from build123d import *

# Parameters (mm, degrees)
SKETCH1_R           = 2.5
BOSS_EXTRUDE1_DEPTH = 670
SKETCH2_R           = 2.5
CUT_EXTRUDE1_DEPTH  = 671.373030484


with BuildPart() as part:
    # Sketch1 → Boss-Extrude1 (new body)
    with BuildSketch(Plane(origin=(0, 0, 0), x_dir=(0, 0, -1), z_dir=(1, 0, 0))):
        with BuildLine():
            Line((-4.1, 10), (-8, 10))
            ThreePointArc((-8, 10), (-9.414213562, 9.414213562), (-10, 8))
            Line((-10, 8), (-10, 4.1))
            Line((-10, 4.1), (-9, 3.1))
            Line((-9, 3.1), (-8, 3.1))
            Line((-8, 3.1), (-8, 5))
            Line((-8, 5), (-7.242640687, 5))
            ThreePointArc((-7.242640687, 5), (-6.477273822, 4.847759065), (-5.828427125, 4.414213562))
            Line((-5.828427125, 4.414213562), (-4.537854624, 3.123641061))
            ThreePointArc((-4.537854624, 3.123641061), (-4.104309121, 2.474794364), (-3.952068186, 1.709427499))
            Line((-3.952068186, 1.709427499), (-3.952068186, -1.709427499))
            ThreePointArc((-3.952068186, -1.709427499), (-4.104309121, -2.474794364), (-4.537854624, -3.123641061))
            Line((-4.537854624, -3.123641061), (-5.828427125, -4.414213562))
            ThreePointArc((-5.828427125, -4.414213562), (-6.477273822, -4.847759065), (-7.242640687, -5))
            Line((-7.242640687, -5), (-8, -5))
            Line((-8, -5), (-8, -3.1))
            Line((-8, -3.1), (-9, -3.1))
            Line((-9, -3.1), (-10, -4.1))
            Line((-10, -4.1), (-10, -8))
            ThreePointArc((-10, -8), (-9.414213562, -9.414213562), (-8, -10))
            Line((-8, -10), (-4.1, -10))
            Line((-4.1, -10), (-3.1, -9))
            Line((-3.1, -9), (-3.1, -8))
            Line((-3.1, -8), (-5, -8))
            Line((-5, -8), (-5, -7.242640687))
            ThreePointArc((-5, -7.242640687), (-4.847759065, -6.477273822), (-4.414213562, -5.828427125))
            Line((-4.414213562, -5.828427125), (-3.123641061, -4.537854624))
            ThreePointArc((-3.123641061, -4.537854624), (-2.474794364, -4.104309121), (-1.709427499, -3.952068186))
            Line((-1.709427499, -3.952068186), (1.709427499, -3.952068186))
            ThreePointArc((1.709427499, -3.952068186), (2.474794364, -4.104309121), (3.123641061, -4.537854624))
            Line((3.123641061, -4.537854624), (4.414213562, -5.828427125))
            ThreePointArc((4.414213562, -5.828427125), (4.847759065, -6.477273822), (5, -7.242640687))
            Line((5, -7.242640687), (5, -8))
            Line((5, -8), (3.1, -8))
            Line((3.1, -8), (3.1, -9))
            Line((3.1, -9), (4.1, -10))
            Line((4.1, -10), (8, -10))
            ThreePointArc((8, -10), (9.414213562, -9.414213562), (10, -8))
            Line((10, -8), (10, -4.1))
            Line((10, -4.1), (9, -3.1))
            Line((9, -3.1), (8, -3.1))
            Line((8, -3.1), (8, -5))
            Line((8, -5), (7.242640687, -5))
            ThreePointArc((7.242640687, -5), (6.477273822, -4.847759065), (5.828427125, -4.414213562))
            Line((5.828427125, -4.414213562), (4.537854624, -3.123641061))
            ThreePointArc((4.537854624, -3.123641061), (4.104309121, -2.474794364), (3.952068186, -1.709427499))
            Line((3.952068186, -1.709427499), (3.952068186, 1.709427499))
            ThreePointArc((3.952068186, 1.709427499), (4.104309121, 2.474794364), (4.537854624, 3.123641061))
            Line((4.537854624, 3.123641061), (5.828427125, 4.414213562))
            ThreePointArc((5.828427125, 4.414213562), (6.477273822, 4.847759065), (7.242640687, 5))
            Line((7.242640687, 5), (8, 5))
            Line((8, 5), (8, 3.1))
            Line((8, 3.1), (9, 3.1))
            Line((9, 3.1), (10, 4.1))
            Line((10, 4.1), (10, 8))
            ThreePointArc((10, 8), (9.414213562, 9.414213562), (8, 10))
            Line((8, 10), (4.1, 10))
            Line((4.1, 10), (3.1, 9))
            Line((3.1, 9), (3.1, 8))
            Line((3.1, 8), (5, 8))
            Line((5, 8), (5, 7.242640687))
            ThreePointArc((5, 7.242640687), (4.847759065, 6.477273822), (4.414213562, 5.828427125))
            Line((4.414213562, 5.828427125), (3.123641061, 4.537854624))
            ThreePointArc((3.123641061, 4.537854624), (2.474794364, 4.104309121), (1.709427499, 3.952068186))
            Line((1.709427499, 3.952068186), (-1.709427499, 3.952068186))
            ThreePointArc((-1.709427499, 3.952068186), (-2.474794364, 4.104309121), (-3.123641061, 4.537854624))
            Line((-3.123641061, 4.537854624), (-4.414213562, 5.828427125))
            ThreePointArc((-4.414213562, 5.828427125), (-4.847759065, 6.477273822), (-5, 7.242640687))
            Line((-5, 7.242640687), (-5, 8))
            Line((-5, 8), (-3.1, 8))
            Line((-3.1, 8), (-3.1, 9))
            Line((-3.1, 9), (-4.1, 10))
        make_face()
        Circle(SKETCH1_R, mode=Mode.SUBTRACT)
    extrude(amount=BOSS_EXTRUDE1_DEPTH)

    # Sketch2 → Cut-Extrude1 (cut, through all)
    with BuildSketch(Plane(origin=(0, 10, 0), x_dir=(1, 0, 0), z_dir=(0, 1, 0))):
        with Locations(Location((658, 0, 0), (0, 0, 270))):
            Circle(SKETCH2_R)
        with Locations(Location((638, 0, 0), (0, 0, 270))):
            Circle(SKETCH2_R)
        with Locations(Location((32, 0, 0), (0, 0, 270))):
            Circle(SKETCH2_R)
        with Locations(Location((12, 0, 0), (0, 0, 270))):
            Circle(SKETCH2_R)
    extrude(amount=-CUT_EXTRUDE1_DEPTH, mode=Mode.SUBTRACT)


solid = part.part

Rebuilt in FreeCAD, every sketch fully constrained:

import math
import FreeCAD as App
import Part
import Sketcher

V = App.Vector

doc = App.newDocument("Part")
body = doc.addObject("PartDesign::Body", "Body")

# Sketch on YZ plane
sketch1 = body.newObject("Sketcher::SketchObject", "Sketch")
sketch1.AttachmentSupport = (doc.getObject("YZ_Plane"), [""])
sketch1.MapMode = "FlatFace"
sketch1.addGeometry(Part.LineSegment(V(10, 4.1, 0), V(10, 8, 0)), False)
sketch1.addGeometry(Part.ArcOfCircle(Part.Circle(V(8, 8, 0), V(0, 0, 1), 2), math.radians(0), math.radians(90)), False)
sketch1.addGeometry(Part.LineSegment(V(8, 10, 0), V(4.1, 10, 0)), False)
sketch1.addGeometry(Part.LineSegment(V(4.1, 10, 0), V(3.1, 9, 0)), False)
sketch1.addGeometry(Part.LineSegment(V(3.1, 9, 0), V(3.1, 8, 0)), False)
sketch1.addGeometry(Part.LineSegment(V(3.1, 8, 0), V(5, 8, 0)), False)
sketch1.addGeometry(Part.LineSegment(V(5, 8, 0), V(5, 7.242641, 0)), False)
sketch1.addGeometry(Part.ArcOfCircle(Part.Circle(V(3, 7.242641, 0), V(0, 0, 1), 2), math.radians(-45), math.radians(0)), False)
sketch1.addGeometry(Part.LineSegment(V(4.414214, 5.828427, 0), V(3.123641, 4.537855, 0)), False)
sketch1.addGeometry(Part.ArcOfCircle(Part.Circle(V(1.709428, 5.952068, 0), V(0, 0, 1), 2), math.radians(-90), math.radians(-45)), False)
sketch1.addGeometry(Part.LineSegment(V(1.709427, 3.952068, 0), V(-1.709427, 3.952068, 0)), False)
sketch1.addGeometry(Part.ArcOfCircle(Part.Circle(V(-1.709428, 5.952068, 0), V(0, 0, 1), 2), math.radians(-135), math.radians(-90)), False)
sketch1.addGeometry(Part.LineSegment(V(-3.123641, 4.537855, 0), V(-4.414214, 5.828427, 0)), False)
sketch1.addGeometry(Part.ArcOfCircle(Part.Circle(V(-3, 7.242641, 0), V(0, 0, 1), 2), math.radians(180), math.radians(225)), False)
sketch1.addGeometry(Part.LineSegment(V(-5, 7.242641, 0), V(-5, 8, 0)), False)
sketch1.addGeometry(Part.LineSegment(V(-5, 8, 0), V(-3.1, 8, 0)), False)
sketch1.addGeometry(Part.LineSegment(V(-3.1, 8, 0), V(-3.1, 9, 0)), False)
sketch1.addGeometry(Part.LineSegment(V(-3.1, 9, 0), V(-4.1, 10, 0)), False)
sketch1.addGeometry(Part.LineSegment(V(-4.1, 10, 0), V(-8, 10, 0)), False)
sketch1.addGeometry(Part.ArcOfCircle(Part.Circle(V(-8, 8, 0), V(0, 0, 1), 2), math.radians(90), math.radians(180)), False)
sketch1.addGeometry(Part.LineSegment(V(-10, 8, 0), V(-10, 4.1, 0)), False)
sketch1.addGeometry(Part.LineSegment(V(-10, 4.1, 0), V(-9, 3.1, 0)), False)
sketch1.addGeometry(Part.LineSegment(V(-9, 3.1, 0), V(-8, 3.1, 0)), False)
sketch1.addGeometry(Part.LineSegment(V(-8, 3.1, 0), V(-8, 5, 0)), False)
sketch1.addGeometry(Part.LineSegment(V(-8, 5, 0), V(-7.242641, 5, 0)), False)
sketch1.addGeometry(Part.ArcOfCircle(Part.Circle(V(-7.242641, 3, 0), V(0, 0, 1), 2), math.radians(45), math.radians(90)), False)
sketch1.addGeometry(Part.LineSegment(V(-5.828427, 4.414214, 0), V(-4.537855, 3.123641, 0)), False)
sketch1.addGeometry(Part.ArcOfCircle(Part.Circle(V(-5.952068, 1.709428, 0), V(0, 0, 1), 2), math.radians(0), math.radians(45)), False)
sketch1.addGeometry(Part.LineSegment(V(-3.952068, 1.709427, 0), V(-3.952068, -1.709427, 0)), False)
sketch1.addGeometry(Part.ArcOfCircle(Part.Circle(V(-5.952068, -1.709428, 0), V(0, 0, 1), 2), math.radians(-45), math.radians(0)), False)
sketch1.addGeometry(Part.LineSegment(V(-4.537855, -3.123641, 0), V(-5.828427, -4.414214, 0)), False)
sketch1.addGeometry(Part.ArcOfCircle(Part.Circle(V(-7.242641, -3, 0), V(0, 0, 1), 2), math.radians(-90), math.radians(-45)), False)
sketch1.addGeometry(Part.LineSegment(V(-7.242641, -5, 0), V(-8, -5, 0)), False)
sketch1.addGeometry(Part.LineSegment(V(-8, -5, 0), V(-8, -3.1, 0)), False)
sketch1.addGeometry(Part.LineSegment(V(-8, -3.1, 0), V(-9, -3.1, 0)), False)
sketch1.addGeometry(Part.LineSegment(V(-9, -3.1, 0), V(-10, -4.1, 0)), False)
sketch1.addGeometry(Part.LineSegment(V(-10, -4.1, 0), V(-10, -8, 0)), False)
sketch1.addGeometry(Part.ArcOfCircle(Part.Circle(V(-8, -8, 0), V(0, 0, 1), 2), math.radians(-180), math.radians(-90)), False)
sketch1.addGeometry(Part.LineSegment(V(-8, -10, 0), V(-4.1, -10, 0)), False)
sketch1.addGeometry(Part.LineSegment(V(-4.1, -10, 0), V(-3.1, -9, 0)), False)
sketch1.addGeometry(Part.LineSegment(V(-3.1, -9, 0), V(-3.1, -8, 0)), False)
sketch1.addGeometry(Part.LineSegment(V(-3.1, -8, 0), V(-5, -8, 0)), False)
sketch1.addGeometry(Part.LineSegment(V(-5, -8, 0), V(-5, -7.242641, 0)), False)
sketch1.addGeometry(Part.ArcOfCircle(Part.Circle(V(-3, -7.242641, 0), V(0, 0, 1), 2), math.radians(135), math.radians(180)), False)
sketch1.addGeometry(Part.LineSegment(V(-4.414214, -5.828427, 0), V(-3.123641, -4.537855, 0)), False)
sketch1.addGeometry(Part.ArcOfCircle(Part.Circle(V(-1.709428, -5.952068, 0), V(0, 0, 1), 2), math.radians(90), math.radians(135)), False)
sketch1.addGeometry(Part.LineSegment(V(-1.709427, -3.952068, 0), V(1.709427, -3.952068, 0)), False)
sketch1.addGeometry(Part.ArcOfCircle(Part.Circle(V(1.709428, -5.952068, 0), V(0, 0, 1), 2), math.radians(45), math.radians(90)), False)
sketch1.addGeometry(Part.LineSegment(V(3.123641, -4.537855, 0), V(4.414214, -5.828427, 0)), False)
sketch1.addGeometry(Part.ArcOfCircle(Part.Circle(V(3, -7.242641, 0), V(0, 0, 1), 2), math.radians(0), math.radians(45)), False)
sketch1.addGeometry(Part.LineSegment(V(5, -7.242641, 0), V(5, -8, 0)), False)
sketch1.addGeometry(Part.LineSegment(V(5, -8, 0), V(3.1, -8, 0)), False)
sketch1.addGeometry(Part.LineSegment(V(3.1, -8, 0), V(3.1, -9, 0)), False)
sketch1.addGeometry(Part.LineSegment(V(3.1, -9, 0), V(4.1, -10, 0)), False)
sketch1.addGeometry(Part.LineSegment(V(4.1, -10, 0), V(8, -10, 0)), False)
sketch1.addGeometry(Part.ArcOfCircle(Part.Circle(V(8, -8, 0), V(0, 0, 1), 2), math.radians(-90), math.radians(0)), False)
sketch1.addGeometry(Part.LineSegment(V(10, -8, 0), V(10, -4.1, 0)), False)
sketch1.addGeometry(Part.LineSegment(V(10, -4.1, 0), V(9, -3.1, 0)), False)
sketch1.addGeometry(Part.LineSegment(V(9, -3.1, 0), V(8, -3.1, 0)), False)
sketch1.addGeometry(Part.LineSegment(V(8, -3.1, 0), V(8, -5, 0)), False)
sketch1.addGeometry(Part.LineSegment(V(8, -5, 0), V(7.242641, -5, 0)), False)
sketch1.addGeometry(Part.ArcOfCircle(Part.Circle(V(7.242641, -3, 0), V(0, 0, 1), 2), math.radians(-135), math.radians(-90)), False)
sketch1.addGeometry(Part.LineSegment(V(5.828427, -4.414214, 0), V(4.537855, -3.123641, 0)), False)
sketch1.addGeometry(Part.ArcOfCircle(Part.Circle(V(5.952068, -1.709428, 0), V(0, 0, 1), 2), math.radians(180), math.radians(225)), False)
sketch1.addGeometry(Part.LineSegment(V(3.952068, -1.709427, 0), V(3.952068, 1.709427, 0)), False)
sketch1.addGeometry(Part.ArcOfCircle(Part.Circle(V(5.952068, 1.709428, 0), V(0, 0, 1), 2), math.radians(135), math.radians(180)), False)
sketch1.addGeometry(Part.LineSegment(V(4.537855, 3.123641, 0), V(5.828427, 4.414214, 0)), False)
sketch1.addGeometry(Part.ArcOfCircle(Part.Circle(V(7.242641, 3, 0), V(0, 0, 1), 2), math.radians(90), math.radians(135)), False)
sketch1.addGeometry(Part.LineSegment(V(7.242641, 5, 0), V(8, 5, 0)), False)
sketch1.addGeometry(Part.LineSegment(V(8, 5, 0), V(8, 3.1, 0)), False)
sketch1.addGeometry(Part.LineSegment(V(8, 3.1, 0), V(9, 3.1, 0)), False)
sketch1.addGeometry(Part.LineSegment(V(9, 3.1, 0), V(10, 4.1, 0)), False)
sketch1.addGeometry(Part.Circle(V(0, 0, 0), V(0, 0, 1), 2.5), False)
sketch1.addConstraint(Sketcher.Constraint("Tangent", 0, 2, 1, 1))
sketch1.addConstraint(Sketcher.Constraint("Tangent", 1, 2, 2, 1))
sketch1.addConstraint(Sketcher.Constraint("Coincident", 2, 2, 3, 1))
sketch1.addConstraint(Sketcher.Constraint("Coincident", 3, 2, 4, 1))
sketch1.addConstraint(Sketcher.Constraint("Coincident", 4, 2, 5, 1))
sketch1.addConstraint(Sketcher.Constraint("Coincident", 5, 2, 6, 1))
sketch1.addConstraint(Sketcher.Constraint("Tangent", 6, 2, 7, 2))
sketch1.addConstraint(Sketcher.Constraint("Tangent", 7, 1, 8, 1))
sketch1.addConstraint(Sketcher.Constraint("Tangent", 8, 2, 9, 2))
sketch1.addConstraint(Sketcher.Constraint("Tangent", 9, 1, 10, 1))
sketch1.addConstraint(Sketcher.Constraint("Tangent", 10, 2, 11, 2))
sketch1.addConstraint(Sketcher.Constraint("Tangent", 11, 1, 12, 1))
sketch1.addConstraint(Sketcher.Constraint("Tangent", 12, 2, 13, 2))
sketch1.addConstraint(Sketcher.Constraint("Tangent", 13, 1, 14, 1))
sketch1.addConstraint(Sketcher.Constraint("Coincident", 14, 2, 15, 1))
sketch1.addConstraint(Sketcher.Constraint("Coincident", 15, 2, 16, 1))
sketch1.addConstraint(Sketcher.Constraint("Coincident", 16, 2, 17, 1))
sketch1.addConstraint(Sketcher.Constraint("Coincident", 17, 2, 18, 1))
sketch1.addConstraint(Sketcher.Constraint("Tangent", 18, 2, 19, 1))
sketch1.addConstraint(Sketcher.Constraint("Tangent", 19, 2, 20, 1))
sketch1.addConstraint(Sketcher.Constraint("Coincident", 20, 2, 21, 1))
sketch1.addConstraint(Sketcher.Constraint("Coincident", 21, 2, 22, 1))
sketch1.addConstraint(Sketcher.Constraint("Coincident", 22, 2, 23, 1))
sketch1.addConstraint(Sketcher.Constraint("Coincident", 23, 2, 24, 1))
sketch1.addConstraint(Sketcher.Constraint("Tangent", 24, 2, 25, 2))
sketch1.addConstraint(Sketcher.Constraint("Tangent", 25, 1, 26, 1))
sketch1.addConstraint(Sketcher.Constraint("Tangent", 26, 2, 27, 2))
sketch1.addConstraint(Sketcher.Constraint("Tangent", 27, 1, 28, 1))
sketch1.addConstraint(Sketcher.Constraint("Tangent", 28, 2, 29, 2))
sketch1.addConstraint(Sketcher.Constraint("Tangent", 29, 1, 30, 1))
sketch1.addConstraint(Sketcher.Constraint("Tangent", 30, 2, 31, 2))
sketch1.addConstraint(Sketcher.Constraint("Tangent", 31, 1, 32, 1))
sketch1.addConstraint(Sketcher.Constraint("Coincident", 32, 2, 33, 1))
sketch1.addConstraint(Sketcher.Constraint("Coincident", 33, 2, 34, 1))
sketch1.addConstraint(Sketcher.Constraint("Coincident", 34, 2, 35, 1))
sketch1.addConstraint(Sketcher.Constraint("Coincident", 35, 2, 36, 1))
sketch1.addConstraint(Sketcher.Constraint("Tangent", 36, 2, 37, 1))
sketch1.addConstraint(Sketcher.Constraint("Tangent", 37, 2, 38, 1))
sketch1.addConstraint(Sketcher.Constraint("Coincident", 38, 2, 39, 1))
sketch1.addConstraint(Sketcher.Constraint("Coincident", 39, 2, 40, 1))
sketch1.addConstraint(Sketcher.Constraint("Coincident", 40, 2, 41, 1))
sketch1.addConstraint(Sketcher.Constraint("Coincident", 41, 2, 42, 1))
sketch1.addConstraint(Sketcher.Constraint("Tangent", 42, 2, 43, 2))
sketch1.addConstraint(Sketcher.Constraint("Tangent", 43, 1, 44, 1))
sketch1.addConstraint(Sketcher.Constraint("Tangent", 44, 2, 45, 2))
sketch1.addConstraint(Sketcher.Constraint("Tangent", 45, 1, 46, 1))
sketch1.addConstraint(Sketcher.Constraint("Tangent", 46, 2, 47, 2))
sketch1.addConstraint(Sketcher.Constraint("Tangent", 47, 1, 48, 1))
sketch1.addConstraint(Sketcher.Constraint("Tangent", 48, 2, 49, 2))
sketch1.addConstraint(Sketcher.Constraint("Tangent", 49, 1, 50, 1))
sketch1.addConstraint(Sketcher.Constraint("Coincident", 50, 2, 51, 1))
sketch1.addConstraint(Sketcher.Constraint("Coincident", 51, 2, 52, 1))
sketch1.addConstraint(Sketcher.Constraint("Coincident", 52, 2, 53, 1))
sketch1.addConstraint(Sketcher.Constraint("Coincident", 53, 2, 54, 1))
sketch1.addConstraint(Sketcher.Constraint("Tangent", 54, 2, 55, 1))
sketch1.addConstraint(Sketcher.Constraint("Tangent", 55, 2, 56, 1))
sketch1.addConstraint(Sketcher.Constraint("Coincident", 56, 2, 57, 1))
sketch1.addConstraint(Sketcher.Constraint("Coincident", 57, 2, 58, 1))
sketch1.addConstraint(Sketcher.Constraint("Coincident", 58, 2, 59, 1))
sketch1.addConstraint(Sketcher.Constraint("Coincident", 59, 2, 60, 1))
sketch1.addConstraint(Sketcher.Constraint("Tangent", 60, 2, 61, 2))
sketch1.addConstraint(Sketcher.Constraint("Tangent", 61, 1, 62, 1))
sketch1.addConstraint(Sketcher.Constraint("Tangent", 62, 2, 63, 2))
sketch1.addConstraint(Sketcher.Constraint("Tangent", 63, 1, 64, 1))
sketch1.addConstraint(Sketcher.Constraint("Tangent", 64, 2, 65, 2))
sketch1.addConstraint(Sketcher.Constraint("Tangent", 65, 1, 66, 1))
sketch1.addConstraint(Sketcher.Constraint("Tangent", 66, 2, 67, 2))
sketch1.addConstraint(Sketcher.Constraint("Tangent", 67, 1, 68, 1))
sketch1.addConstraint(Sketcher.Constraint("Coincident", 68, 2, 69, 1))
sketch1.addConstraint(Sketcher.Constraint("Coincident", 69, 2, 70, 1))
sketch1.addConstraint(Sketcher.Constraint("Coincident", 70, 2, 71, 1))
sketch1.addConstraint(Sketcher.Constraint("Coincident", 71, 2, 0, 1))
sketch1.addConstraint(Sketcher.Constraint("Vertical", 0))
sketch1.addConstraint(Sketcher.Constraint("Horizontal", 2))
sketch1.addConstraint(Sketcher.Constraint("Vertical", 4))
sketch1.addConstraint(Sketcher.Constraint("Horizontal", 5))
sketch1.addConstraint(Sketcher.Constraint("Vertical", 6))
sketch1.addConstraint(Sketcher.Constraint("Horizontal", 10))
sketch1.addConstraint(Sketcher.Constraint("Vertical", 14))
sketch1.addConstraint(Sketcher.Constraint("Horizontal", 15))
sketch1.addConstraint(Sketcher.Constraint("Vertical", 16))
sketch1.addConstraint(Sketcher.Constraint("Horizontal", 18))
sketch1.addConstraint(Sketcher.Constraint("Vertical", 20))
sketch1.addConstraint(Sketcher.Constraint("Horizontal", 22))
sketch1.addConstraint(Sketcher.Constraint("Vertical", 23))
sketch1.addConstraint(Sketcher.Constraint("Horizontal", 24))
sketch1.addConstraint(Sketcher.Constraint("Vertical", 28))
sketch1.addConstraint(Sketcher.Constraint("Horizontal", 32))
sketch1.addConstraint(Sketcher.Constraint("Vertical", 33))
sketch1.addConstraint(Sketcher.Constraint("Horizontal", 34))
sketch1.addConstraint(Sketcher.Constraint("Vertical", 36))
sketch1.addConstraint(Sketcher.Constraint("Horizontal", 38))
sketch1.addConstraint(Sketcher.Constraint("Vertical", 40))
sketch1.addConstraint(Sketcher.Constraint("Horizontal", 41))
sketch1.addConstraint(Sketcher.Constraint("Vertical", 42))
sketch1.addConstraint(Sketcher.Constraint("Horizontal", 46))
sketch1.addConstraint(Sketcher.Constraint("Vertical", 50))
sketch1.addConstraint(Sketcher.Constraint("Horizontal", 51))
sketch1.addConstraint(Sketcher.Constraint("Vertical", 52))
sketch1.addConstraint(Sketcher.Constraint("Horizontal", 54))
sketch1.addConstraint(Sketcher.Constraint("Vertical", 56))
sketch1.addConstraint(Sketcher.Constraint("Horizontal", 58))
sketch1.addConstraint(Sketcher.Constraint("Vertical", 59))
sketch1.addConstraint(Sketcher.Constraint("Horizontal", 60))
sketch1.addConstraint(Sketcher.Constraint("Vertical", 64))
sketch1.addConstraint(Sketcher.Constraint("Horizontal", 68))
sketch1.addConstraint(Sketcher.Constraint("Vertical", 69))
sketch1.addConstraint(Sketcher.Constraint("Horizontal", 70))
sketch1.addConstraint(Sketcher.Constraint("Coincident", 72, 3, -1, 1))
sketch1.addConstraint(Sketcher.Constraint("Equal", 1, 7))
sketch1.addConstraint(Sketcher.Constraint("Equal", 7, 9))
sketch1.addConstraint(Sketcher.Constraint("Equal", 9, 11))
sketch1.addConstraint(Sketcher.Constraint("Equal", 11, 13))
sketch1.addConstraint(Sketcher.Constraint("Equal", 13, 19))
sketch1.addConstraint(Sketcher.Constraint("Equal", 19, 25))
sketch1.addConstraint(Sketcher.Constraint("Equal", 25, 27))
sketch1.addConstraint(Sketcher.Constraint("Equal", 27, 29))
sketch1.addConstraint(Sketcher.Constraint("Equal", 29, 31))
sketch1.addConstraint(Sketcher.Constraint("Equal", 31, 37))
sketch1.addConstraint(Sketcher.Constraint("Equal", 37, 43))
sketch1.addConstraint(Sketcher.Constraint("Equal", 43, 45))
sketch1.addConstraint(Sketcher.Constraint("Equal", 45, 47))
sketch1.addConstraint(Sketcher.Constraint("Equal", 47, 49))
sketch1.addConstraint(Sketcher.Constraint("Equal", 49, 55))
sketch1.addConstraint(Sketcher.Constraint("Equal", 55, 61))
sketch1.addConstraint(Sketcher.Constraint("Equal", 61, 63))
sketch1.addConstraint(Sketcher.Constraint("Equal", 63, 65))
sketch1.addConstraint(Sketcher.Constraint("Equal", 65, 67))
sketch1.addConstraint(Sketcher.Constraint("Symmetric", 1, 3, 37, 3, -1, 1))
sketch1.addConstraint(Sketcher.Constraint("Symmetric", 7, 3, 43, 3, -1, 1))
sketch1.addConstraint(Sketcher.Constraint("Symmetric", 9, 3, 45, 3, -1, 1))
sketch1.addConstraint(Sketcher.Constraint("Symmetric", 13, 3, 49, 3, -1, 1))
sketch1.addConstraint(Sketcher.Constraint("Symmetric", 19, 3, 55, 3, -1, 1))
sketch1.addConstraint(Sketcher.Constraint("Symmetric", 25, 3, 61, 3, -1, 1))
sketch1.addConstraint(Sketcher.Constraint("Symmetric", 27, 3, 63, 3, -1, 1))
sketch1.addConstraint(Sketcher.Constraint("Symmetric", 31, 3, 67, 3, -1, 1))
sketch1.addConstraint(Sketcher.Constraint("Symmetric", 3, 2, 39, 2, -1, 1))
sketch1.addConstraint(Sketcher.Constraint("Symmetric", 15, 2, 51, 2, -1, 1))
sketch1.addConstraint(Sketcher.Constraint("Symmetric", 21, 2, 57, 2, -1, 1))
sketch1.addConstraint(Sketcher.Constraint("Symmetric", 33, 2, 69, 2, -1, 1))
sketch1.addConstraint(Sketcher.Constraint("Symmetric", 7, 3, 13, 3, -2))
sketch1.addConstraint(Sketcher.Constraint("Symmetric", 1, 3, 19, 3, -2))
sketch1.addConstraint(Sketcher.Constraint("Symmetric", 31, 3, 61, 3, -2))
sketch1.addConstraint(Sketcher.Constraint("Symmetric", 4, 2, 15, 2, -2))
sketch1.addConstraint(Sketcher.Constraint("Symmetric", 34, 2, 57, 2, -2))
sketch1.addConstraint(Sketcher.Constraint("Parallel", 3, 8))
sketch1.addConstraint(Sketcher.Constraint("Perpendicular", 8, 12))
sketch1.addConstraint(Sketcher.Constraint("Parallel", 12, 17))
sketch1.addConstraint(Sketcher.Constraint("Parallel", 17, 21))
sketch1.addConstraint(Sketcher.Constraint("Parallel", 21, 26))
sketch1.addConstraint(Sketcher.Constraint("Perpendicular", 26, 30))
sketch1.addConstraint(Sketcher.Constraint("Parallel", 30, 35))
sketch1.addConstraint(Sketcher.Constraint("Parallel", 35, 39))
sketch1.addConstraint(Sketcher.Constraint("Perpendicular", 44, 48))
sketch1.addConstraint(Sketcher.Constraint("Parallel", 48, 53))
sketch1.addConstraint(Sketcher.Constraint("Parallel", 53, 57))
sketch1.addConstraint(Sketcher.Constraint("Perpendicular", 62, 66))
sketch1.addConstraint(Sketcher.Constraint("Parallel", 66, 71))
sketch1.addConstraint(Sketcher.Constraint("Horizontal", 29, 3, 63, 3))
sketch1.addConstraint(Sketcher.Constraint("Horizontal", 0, 2, 4, 2))
sketch1.addConstraint(Sketcher.Constraint("Horizontal", 3, 2, 16, 2))
sketch1.addConstraint(Sketcher.Constraint("Horizontal", 36, 2, 40, 2))
sketch1.addConstraint(Sketcher.Constraint("Horizontal", 39, 2, 52, 2))
sketch1.addConstraint(Sketcher.Constraint("Horizontal", 20, 2, 71, 2))
sketch1.addConstraint(Sketcher.Constraint("Vertical", 18, 2, 22, 2))
sketch1.addConstraint(Sketcher.Constraint("Vertical", 23, 2, 32, 2))
sketch1.addConstraint(Sketcher.Constraint("Vertical", 54, 2, 58, 2))
sketch1.addConstraint(Sketcher.Constraint("Equal", 54, 0))
sketch1.addConstraint(Sketcher.Constraint("Equal", 70, 4))
sketch1.addConstraint(Sketcher.Constraint("Equal", 68, 6))
sketch1.addConstraint(Sketcher.Constraint("Equal", 51, 23))
sketch1.addConstraint(Sketcher.Constraint("Equal", 46, 28))
sketch1.addConstraint(Sketcher.Constraint("Equal", 12, 26))
sketch1.addConstraint(Sketcher.Constraint("Diameter", 72, 5.0))
sketch1.addConstraint(Sketcher.Constraint("Radius", 1, 2.0))
sketch1.addConstraint(Sketcher.Constraint("DistanceX", 22, 1, 22, 2, 1.0))
sketch1.addConstraint(Sketcher.Constraint("DistanceX", 2, 2, 2, 1, 3.9))
sketch1.addConstraint(Sketcher.Constraint("DistanceX", 5, 1, 5, 2, 1.9))
sketch1.addConstraint(Sketcher.Constraint("DistanceX", -1, 1, 1, 3, 8.0))
sketch1.addConstraint(Sketcher.Constraint("DistanceX", 24, 1, 24, 2, 0.757359))
sketch1.addConstraint(Sketcher.Constraint("DistanceX", 10, 2, 10, 1, 3.418855))
pad1 = body.newObject("PartDesign::Pad", "Pad")
pad1.Profile = sketch1
pad1.Length = 670

# Sketch on XZ plane
sketch2 = body.newObject("Sketcher::SketchObject", "Sketch001")
sketch2.AttachmentSupport = (doc.getObject("XZ_Plane"), [""])
sketch2.MapMode = "FlatFace"
sketch2.AttachmentOffset = App.Placement(V(0, 0, -10), App.Rotation())
sketch2.addGeometry(Part.Circle(V(658, 0, 0), V(0, 0, 1), 2.5), False)
sketch2.addGeometry(Part.Circle(V(638, 0, 0), V(0, 0, 1), 2.5), False)
sketch2.addGeometry(Part.Circle(V(32, 0, 0), V(0, 0, 1), 2.5), False)
sketch2.addGeometry(Part.Circle(V(12, 0, 0), V(0, 0, 1), 2.5), False)
sketch2.addConstraint(Sketcher.Constraint("Equal", 0, 1))
sketch2.addConstraint(Sketcher.Constraint("Equal", 1, 2))
sketch2.addConstraint(Sketcher.Constraint("Equal", 2, 3))
sketch2.addConstraint(Sketcher.Constraint("PointOnObject", 0, 3, -1))
sketch2.addConstraint(Sketcher.Constraint("PointOnObject", 1, 3, -1))
sketch2.addConstraint(Sketcher.Constraint("PointOnObject", 2, 3, -1))
sketch2.addConstraint(Sketcher.Constraint("PointOnObject", 3, 3, -1))
sketch2.addConstraint(Sketcher.Constraint("Diameter", 0, 5.0))
sketch2.addConstraint(Sketcher.Constraint("DistanceX", -1, 1, 0, 3, 658.0))
sketch2.addConstraint(Sketcher.Constraint("DistanceX", -1, 1, 1, 3, 638.0))
sketch2.addConstraint(Sketcher.Constraint("DistanceX", -1, 1, 2, 3, 32.0))
sketch2.addConstraint(Sketcher.Constraint("DistanceX", -1, 1, 3, 3, 12.0))
pocket1 = body.newObject("PartDesign::Pocket", "Pocket")
pocket1.Profile = sketch2
pocket1.Type = "ThroughAll"
pocket1.Reversed = True

doc.recompute()
